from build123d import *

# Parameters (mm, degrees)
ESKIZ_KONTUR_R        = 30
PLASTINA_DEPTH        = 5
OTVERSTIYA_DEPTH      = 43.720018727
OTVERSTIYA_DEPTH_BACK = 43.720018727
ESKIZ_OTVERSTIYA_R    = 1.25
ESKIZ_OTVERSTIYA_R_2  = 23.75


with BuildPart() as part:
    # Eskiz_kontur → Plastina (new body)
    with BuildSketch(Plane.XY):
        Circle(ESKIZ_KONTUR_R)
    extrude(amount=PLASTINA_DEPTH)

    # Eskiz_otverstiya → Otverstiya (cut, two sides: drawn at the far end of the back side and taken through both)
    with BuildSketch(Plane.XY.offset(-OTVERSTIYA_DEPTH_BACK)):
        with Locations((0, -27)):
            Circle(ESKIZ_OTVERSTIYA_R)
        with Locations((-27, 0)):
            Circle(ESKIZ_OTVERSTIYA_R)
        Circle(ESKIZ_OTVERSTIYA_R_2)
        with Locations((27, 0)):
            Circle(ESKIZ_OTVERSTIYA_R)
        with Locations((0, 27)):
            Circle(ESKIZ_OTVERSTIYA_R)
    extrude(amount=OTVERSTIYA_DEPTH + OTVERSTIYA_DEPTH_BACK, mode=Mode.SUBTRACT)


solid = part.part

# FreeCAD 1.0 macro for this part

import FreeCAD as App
import Part
import Sketcher
from FreeCAD import Vector

doc = App.newDocument("Part")
params = doc.addObject("Spreadsheet::Sheet", "Params")
for row, (alias, value) in enumerate([
    ("sketch1_diameter", "60 mm"),
    ("pad1_length", "5 mm"),
    ("sketch2_diameter", "2.5 mm"),
    ("sketch2_diameter2", "47.5 mm"),
], start=1):
    params.set(f"A{row}", alias)
    params.set(f"B{row}", "=" + value)
    params.setAlias(f"B{row}", alias)

body = doc.addObject("PartDesign::Body", "Body")

sketch1 = doc.addObject("Sketcher::SketchObject", "Sketch")
body.addObject(sketch1)
sketch1.AttachmentSupport = (doc.XY_Plane, [""])
sketch1.MapMode = "FlatFace"
sketch1.addGeometry(Part.Circle(Vector(0, 0, 0), Vector(0, 0, 1), 30), False)
sketch1.addConstraint([
    Sketcher.Constraint("Coincident", 0, 3, -1, 1),
    Sketcher.Constraint("Diameter", 0, 60.0),
])
sketch1.setExpression("Constraints[1]", "Params.sketch1_diameter")
pad1 = doc.addObject("PartDesign::Pad", "Pad")
body.addObject(pad1)
pad1.Profile = sketch1
pad1.setExpression("Length", "Params.pad1_length")

sketch2 = doc.addObject("Sketcher::SketchObject", "Sketch001")
body.addObject(sketch2)
sketch2.AttachmentSupport = (doc.XY_Plane, [""])
sketch2.MapMode = "FlatFace"
sketch2.addGeometry([
    Part.Circle(Vector(0, -27, 0), Vector(0, 0, 1), 1.2),
    Part.Circle(Vector(-27, 0, 0), Vector(0, 0, 1), 1.2),
    Part.Circle(Vector(0, 0, 0), Vector(0, 0, 1), 23.8),
    Part.Circle(Vector(27, 0, 0), Vector(0, 0, 1), 1.2),
    Part.Circle(Vector(0, 27, 0), Vector(0, 0, 1), 1.2),
], False)
sketch2.addConstraint([
    Sketcher.Constraint("Coincident", 2, 3, -1, 1),
    Sketcher.Constraint("Equal", 0, 1),
    Sketcher.Constraint("Equal", 1, 3),
    Sketcher.Constraint("Equal", 3, 4),
    Sketcher.Constraint("Symmetric", 1, 3, 3, 3, -1, 1),
    Sketcher.Constraint("Symmetric", 0, 3, 4, 3, -1, 1),
    Sketcher.Constraint("PointOnObject", 0, 3, -2),
    Sketcher.Constraint("PointOnObject", 1, 3, -1),
    Sketcher.Constraint("Diameter", 0, 2.5),
    Sketcher.Constraint("Diameter", 2, 47.5),
    Sketcher.Constraint("DistanceY", 0, 3, -1, 1, 27.0),
    Sketcher.Constraint("DistanceX", 1, 3, -1, 1, 27.0),
])
sketch2.setExpression("Constraints[8]", "Params.sketch2_diameter")
sketch2.setExpression("Constraints[9]", "Params.sketch2_diameter2")
pocket1 = doc.addObject("PartDesign::Pocket", "Pocket")
body.addObject(pocket1)
pocket1.Profile = sketch2
pocket1.Type = "ThroughAll"
pocket1.Midplane = True

doc.recompute()
